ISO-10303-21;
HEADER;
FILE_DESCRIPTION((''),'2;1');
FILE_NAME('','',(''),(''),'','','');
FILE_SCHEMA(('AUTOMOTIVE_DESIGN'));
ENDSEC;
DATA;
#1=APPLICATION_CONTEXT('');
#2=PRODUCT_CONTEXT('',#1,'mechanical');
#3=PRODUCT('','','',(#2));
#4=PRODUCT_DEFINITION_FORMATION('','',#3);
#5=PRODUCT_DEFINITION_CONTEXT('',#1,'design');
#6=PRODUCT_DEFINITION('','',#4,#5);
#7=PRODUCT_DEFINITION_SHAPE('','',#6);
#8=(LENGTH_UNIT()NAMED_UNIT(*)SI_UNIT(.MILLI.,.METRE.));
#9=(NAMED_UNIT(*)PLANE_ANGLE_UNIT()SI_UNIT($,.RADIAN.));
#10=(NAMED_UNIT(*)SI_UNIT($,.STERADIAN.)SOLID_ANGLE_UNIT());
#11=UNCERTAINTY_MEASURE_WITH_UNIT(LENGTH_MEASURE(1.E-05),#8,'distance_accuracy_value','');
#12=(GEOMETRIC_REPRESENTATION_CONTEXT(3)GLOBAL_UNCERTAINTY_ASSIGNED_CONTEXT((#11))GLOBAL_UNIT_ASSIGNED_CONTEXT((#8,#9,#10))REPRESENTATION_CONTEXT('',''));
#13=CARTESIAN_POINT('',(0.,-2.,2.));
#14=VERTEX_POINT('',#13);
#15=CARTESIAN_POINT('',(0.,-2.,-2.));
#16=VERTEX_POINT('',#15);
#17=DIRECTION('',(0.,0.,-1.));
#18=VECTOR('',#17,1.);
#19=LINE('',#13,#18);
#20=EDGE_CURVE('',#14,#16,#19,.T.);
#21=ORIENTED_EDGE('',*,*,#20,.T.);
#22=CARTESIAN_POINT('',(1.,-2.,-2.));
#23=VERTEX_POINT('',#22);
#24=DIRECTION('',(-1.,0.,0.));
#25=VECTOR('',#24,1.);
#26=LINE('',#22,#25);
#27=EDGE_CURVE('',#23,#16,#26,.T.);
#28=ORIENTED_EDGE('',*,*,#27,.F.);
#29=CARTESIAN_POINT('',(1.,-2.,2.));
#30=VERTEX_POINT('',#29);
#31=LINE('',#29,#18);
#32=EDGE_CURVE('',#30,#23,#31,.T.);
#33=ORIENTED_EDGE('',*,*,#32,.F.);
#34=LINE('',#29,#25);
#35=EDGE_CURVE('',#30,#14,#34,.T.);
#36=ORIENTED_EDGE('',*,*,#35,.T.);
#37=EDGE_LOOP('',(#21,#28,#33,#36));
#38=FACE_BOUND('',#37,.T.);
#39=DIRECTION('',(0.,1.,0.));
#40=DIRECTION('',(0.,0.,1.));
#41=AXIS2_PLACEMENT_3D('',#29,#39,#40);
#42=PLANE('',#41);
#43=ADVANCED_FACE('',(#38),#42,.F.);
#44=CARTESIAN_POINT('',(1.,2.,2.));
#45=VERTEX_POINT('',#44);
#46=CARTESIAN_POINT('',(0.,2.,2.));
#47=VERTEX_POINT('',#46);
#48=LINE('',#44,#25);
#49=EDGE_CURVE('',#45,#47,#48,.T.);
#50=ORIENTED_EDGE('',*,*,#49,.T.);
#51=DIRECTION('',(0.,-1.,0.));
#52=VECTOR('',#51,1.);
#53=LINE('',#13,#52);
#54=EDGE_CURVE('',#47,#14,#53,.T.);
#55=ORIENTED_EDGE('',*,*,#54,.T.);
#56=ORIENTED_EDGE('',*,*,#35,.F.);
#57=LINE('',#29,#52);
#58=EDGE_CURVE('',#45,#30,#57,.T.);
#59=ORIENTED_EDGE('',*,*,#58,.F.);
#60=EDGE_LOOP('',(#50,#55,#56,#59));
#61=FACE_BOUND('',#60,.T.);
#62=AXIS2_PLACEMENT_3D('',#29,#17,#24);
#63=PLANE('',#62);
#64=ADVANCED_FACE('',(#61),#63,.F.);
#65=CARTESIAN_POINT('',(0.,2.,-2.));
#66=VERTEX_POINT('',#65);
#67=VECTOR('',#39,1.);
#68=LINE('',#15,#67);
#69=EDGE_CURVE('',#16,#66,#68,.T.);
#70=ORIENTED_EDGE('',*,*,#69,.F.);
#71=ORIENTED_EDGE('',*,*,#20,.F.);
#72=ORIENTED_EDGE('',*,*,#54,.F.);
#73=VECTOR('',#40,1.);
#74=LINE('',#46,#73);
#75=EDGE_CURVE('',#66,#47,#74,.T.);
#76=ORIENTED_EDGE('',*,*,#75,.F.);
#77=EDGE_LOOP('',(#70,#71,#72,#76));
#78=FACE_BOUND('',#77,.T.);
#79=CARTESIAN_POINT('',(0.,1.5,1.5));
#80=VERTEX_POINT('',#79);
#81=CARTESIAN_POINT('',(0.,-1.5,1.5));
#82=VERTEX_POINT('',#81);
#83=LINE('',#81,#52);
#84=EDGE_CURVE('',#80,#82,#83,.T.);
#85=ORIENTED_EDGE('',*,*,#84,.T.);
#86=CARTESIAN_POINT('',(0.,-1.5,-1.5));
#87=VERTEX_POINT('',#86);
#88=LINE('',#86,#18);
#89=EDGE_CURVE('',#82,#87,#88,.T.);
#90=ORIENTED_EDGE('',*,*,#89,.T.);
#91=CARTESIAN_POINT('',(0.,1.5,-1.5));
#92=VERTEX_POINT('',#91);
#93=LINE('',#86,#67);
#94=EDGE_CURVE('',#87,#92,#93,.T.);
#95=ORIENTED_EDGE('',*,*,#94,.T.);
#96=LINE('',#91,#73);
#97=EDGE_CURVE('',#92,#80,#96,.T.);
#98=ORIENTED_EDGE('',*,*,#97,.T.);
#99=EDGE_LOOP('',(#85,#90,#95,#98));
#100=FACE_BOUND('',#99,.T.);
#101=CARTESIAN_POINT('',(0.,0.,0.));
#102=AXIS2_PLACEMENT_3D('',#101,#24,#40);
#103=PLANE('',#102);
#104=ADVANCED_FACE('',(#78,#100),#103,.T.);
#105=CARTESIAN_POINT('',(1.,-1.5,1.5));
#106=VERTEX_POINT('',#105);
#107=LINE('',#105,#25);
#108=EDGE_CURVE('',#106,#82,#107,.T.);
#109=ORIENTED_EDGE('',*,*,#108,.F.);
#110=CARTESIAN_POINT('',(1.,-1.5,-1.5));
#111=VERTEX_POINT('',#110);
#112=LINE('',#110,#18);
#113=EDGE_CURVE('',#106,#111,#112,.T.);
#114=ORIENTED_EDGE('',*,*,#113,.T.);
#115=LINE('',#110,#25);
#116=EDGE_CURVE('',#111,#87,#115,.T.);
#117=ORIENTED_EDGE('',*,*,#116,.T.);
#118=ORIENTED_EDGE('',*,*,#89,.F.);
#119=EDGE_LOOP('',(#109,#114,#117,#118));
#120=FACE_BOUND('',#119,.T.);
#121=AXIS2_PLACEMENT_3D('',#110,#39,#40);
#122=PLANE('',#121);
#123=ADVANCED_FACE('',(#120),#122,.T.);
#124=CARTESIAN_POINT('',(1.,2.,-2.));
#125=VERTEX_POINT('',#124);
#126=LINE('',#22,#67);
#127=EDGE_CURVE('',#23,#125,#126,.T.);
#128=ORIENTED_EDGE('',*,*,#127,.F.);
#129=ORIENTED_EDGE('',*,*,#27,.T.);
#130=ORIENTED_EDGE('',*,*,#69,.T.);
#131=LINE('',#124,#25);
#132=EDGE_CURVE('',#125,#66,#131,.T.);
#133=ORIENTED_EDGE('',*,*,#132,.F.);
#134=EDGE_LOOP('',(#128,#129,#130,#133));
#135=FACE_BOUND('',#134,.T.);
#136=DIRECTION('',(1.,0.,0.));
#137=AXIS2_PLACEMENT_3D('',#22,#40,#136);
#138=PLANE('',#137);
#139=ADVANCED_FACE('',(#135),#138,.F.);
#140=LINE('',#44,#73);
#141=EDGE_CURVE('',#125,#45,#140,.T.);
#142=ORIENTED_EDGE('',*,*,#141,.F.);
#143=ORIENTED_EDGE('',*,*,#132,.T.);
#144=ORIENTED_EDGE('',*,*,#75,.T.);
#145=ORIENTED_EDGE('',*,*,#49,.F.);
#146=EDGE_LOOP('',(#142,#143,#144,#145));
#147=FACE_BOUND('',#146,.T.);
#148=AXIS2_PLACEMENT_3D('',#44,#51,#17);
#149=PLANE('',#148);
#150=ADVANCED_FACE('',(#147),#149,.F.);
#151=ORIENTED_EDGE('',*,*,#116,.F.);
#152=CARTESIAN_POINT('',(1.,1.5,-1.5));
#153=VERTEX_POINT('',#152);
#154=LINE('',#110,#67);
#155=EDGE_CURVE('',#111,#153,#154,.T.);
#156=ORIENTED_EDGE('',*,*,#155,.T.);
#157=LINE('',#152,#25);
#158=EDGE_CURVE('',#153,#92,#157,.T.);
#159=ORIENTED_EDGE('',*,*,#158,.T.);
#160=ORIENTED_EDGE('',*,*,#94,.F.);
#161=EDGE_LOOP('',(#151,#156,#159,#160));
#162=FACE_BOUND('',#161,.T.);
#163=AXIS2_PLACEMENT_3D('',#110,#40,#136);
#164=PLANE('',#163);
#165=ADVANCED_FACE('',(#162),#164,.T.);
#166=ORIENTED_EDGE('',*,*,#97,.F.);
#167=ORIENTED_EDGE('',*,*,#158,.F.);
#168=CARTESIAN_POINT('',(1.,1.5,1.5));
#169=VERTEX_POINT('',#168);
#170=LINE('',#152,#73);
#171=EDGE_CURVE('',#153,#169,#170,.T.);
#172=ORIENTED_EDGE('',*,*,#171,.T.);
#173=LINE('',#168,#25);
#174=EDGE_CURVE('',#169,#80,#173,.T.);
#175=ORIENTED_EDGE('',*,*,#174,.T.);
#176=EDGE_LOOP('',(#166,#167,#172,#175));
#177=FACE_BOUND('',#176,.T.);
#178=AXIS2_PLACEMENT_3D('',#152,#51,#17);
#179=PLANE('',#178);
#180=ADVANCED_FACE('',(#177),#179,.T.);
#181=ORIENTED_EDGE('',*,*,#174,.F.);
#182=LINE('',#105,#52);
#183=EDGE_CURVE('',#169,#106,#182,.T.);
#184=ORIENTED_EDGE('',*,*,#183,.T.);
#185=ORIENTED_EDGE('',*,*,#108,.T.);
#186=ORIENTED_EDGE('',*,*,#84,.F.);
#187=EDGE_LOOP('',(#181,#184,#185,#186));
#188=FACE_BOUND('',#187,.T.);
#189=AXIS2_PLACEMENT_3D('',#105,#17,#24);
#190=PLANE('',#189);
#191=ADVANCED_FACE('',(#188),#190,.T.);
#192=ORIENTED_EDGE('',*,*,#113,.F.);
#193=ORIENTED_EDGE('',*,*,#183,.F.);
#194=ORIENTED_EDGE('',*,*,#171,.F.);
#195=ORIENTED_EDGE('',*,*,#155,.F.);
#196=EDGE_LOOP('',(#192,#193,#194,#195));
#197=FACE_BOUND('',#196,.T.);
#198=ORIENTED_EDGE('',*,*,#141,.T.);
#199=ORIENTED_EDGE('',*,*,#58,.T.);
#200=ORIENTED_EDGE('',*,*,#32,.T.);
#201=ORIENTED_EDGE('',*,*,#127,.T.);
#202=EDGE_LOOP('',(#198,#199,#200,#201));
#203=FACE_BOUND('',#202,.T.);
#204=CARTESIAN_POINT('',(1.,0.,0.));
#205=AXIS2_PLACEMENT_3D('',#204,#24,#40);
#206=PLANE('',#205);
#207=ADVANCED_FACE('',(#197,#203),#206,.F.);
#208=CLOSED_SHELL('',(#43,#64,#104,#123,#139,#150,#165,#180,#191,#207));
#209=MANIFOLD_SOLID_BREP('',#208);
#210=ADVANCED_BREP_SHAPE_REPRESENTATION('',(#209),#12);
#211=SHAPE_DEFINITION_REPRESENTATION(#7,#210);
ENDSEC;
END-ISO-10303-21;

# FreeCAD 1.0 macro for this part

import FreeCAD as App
import Part
import Sketcher
Q = App.Units.Quantity


def add_polygon(sketch, points):
    """Adds a closed chain of lines whose ends are joined by coincident constraints."""
    first, n = sketch.GeometryCount, len(points)
    for a, b in zip(points, points[1:] + points[:1]):
        sketch.addGeometry(Part.LineSegment(App.Vector(*a, 0), App.Vector(*b, 0)), False)
    for i in range(n):
        sketch.addConstraint(Sketcher.Constraint("Coincident", first + i, 2, first + (i + 1) % n, 1))

doc = App.newDocument("Part")
params = doc.addObject("Spreadsheet::Sheet", "Params")
for row, (alias, value) in enumerate([
    ("sketch1_width", "4 mm"),
    ("sketch1_width2", "3 mm"),
    ("pad1_length", "1 mm"),
], start=1):
    params.set(f"A{row}", alias)
    params.set(f"B{row}", "=" + value)
    params.setAlias(f"B{row}", alias)

body = doc.addObject("PartDesign::Body", "Body")

# Sketch on YZ plane
sketch1 = body.newObject("Sketcher::SketchObject", "Sketch")
sketch1.AttachmentSupport = (doc.getObject("YZ_Plane"), [""])
sketch1.MapMode = "FlatFace"
add_polygon(sketch1, [(2, 2), (-2, 2), (-2, -2), (2, -2)])  # lines 0-3
add_polygon(sketch1, [(-1.5, -1.5), (-1.5, 1.5), (1.5, 1.5), (1.5, -1.5)])  # lines 4-7
sketch1.addConstraint([
    Sketcher.Constraint("Horizontal", 0),
    Sketcher.Constraint("Vertical", 1),
    Sketcher.Constraint("Horizontal", 2),
    Sketcher.Constraint("Vertical", 3),
    Sketcher.Constraint("Vertical", 4),
    Sketcher.Constraint("Horizontal", 5),
    Sketcher.Constraint("Vertical", 6),
    Sketcher.Constraint("Horizontal", 7),
    Sketcher.Constraint("Symmetric", 0, 2, 2, 2, -1, 1),
    Sketcher.Constraint("Symmetric", 4, 2, 6, 2, -1, 1),
    Sketcher.Constraint("Equal", 2, 1),
    Sketcher.Constraint("Equal", 7, 4),
    Sketcher.Constraint("DistanceX", 0, 2, 0, 1, Q("4 mm")),
    Sketcher.Constraint("DistanceX", 5, 1, 5, 2, Q("3 mm")),
])
sketch1.setExpression("Constraints[20]", "Params.sketch1_width")
sketch1.setExpression("Constraints[21]", "Params.sketch1_width2")
pad1 = body.newObject("PartDesign::Pad", "Pad")
pad1.Profile = sketch1
pad1.setExpression("Length", "Params.pad1_length")

doc.recompute()
